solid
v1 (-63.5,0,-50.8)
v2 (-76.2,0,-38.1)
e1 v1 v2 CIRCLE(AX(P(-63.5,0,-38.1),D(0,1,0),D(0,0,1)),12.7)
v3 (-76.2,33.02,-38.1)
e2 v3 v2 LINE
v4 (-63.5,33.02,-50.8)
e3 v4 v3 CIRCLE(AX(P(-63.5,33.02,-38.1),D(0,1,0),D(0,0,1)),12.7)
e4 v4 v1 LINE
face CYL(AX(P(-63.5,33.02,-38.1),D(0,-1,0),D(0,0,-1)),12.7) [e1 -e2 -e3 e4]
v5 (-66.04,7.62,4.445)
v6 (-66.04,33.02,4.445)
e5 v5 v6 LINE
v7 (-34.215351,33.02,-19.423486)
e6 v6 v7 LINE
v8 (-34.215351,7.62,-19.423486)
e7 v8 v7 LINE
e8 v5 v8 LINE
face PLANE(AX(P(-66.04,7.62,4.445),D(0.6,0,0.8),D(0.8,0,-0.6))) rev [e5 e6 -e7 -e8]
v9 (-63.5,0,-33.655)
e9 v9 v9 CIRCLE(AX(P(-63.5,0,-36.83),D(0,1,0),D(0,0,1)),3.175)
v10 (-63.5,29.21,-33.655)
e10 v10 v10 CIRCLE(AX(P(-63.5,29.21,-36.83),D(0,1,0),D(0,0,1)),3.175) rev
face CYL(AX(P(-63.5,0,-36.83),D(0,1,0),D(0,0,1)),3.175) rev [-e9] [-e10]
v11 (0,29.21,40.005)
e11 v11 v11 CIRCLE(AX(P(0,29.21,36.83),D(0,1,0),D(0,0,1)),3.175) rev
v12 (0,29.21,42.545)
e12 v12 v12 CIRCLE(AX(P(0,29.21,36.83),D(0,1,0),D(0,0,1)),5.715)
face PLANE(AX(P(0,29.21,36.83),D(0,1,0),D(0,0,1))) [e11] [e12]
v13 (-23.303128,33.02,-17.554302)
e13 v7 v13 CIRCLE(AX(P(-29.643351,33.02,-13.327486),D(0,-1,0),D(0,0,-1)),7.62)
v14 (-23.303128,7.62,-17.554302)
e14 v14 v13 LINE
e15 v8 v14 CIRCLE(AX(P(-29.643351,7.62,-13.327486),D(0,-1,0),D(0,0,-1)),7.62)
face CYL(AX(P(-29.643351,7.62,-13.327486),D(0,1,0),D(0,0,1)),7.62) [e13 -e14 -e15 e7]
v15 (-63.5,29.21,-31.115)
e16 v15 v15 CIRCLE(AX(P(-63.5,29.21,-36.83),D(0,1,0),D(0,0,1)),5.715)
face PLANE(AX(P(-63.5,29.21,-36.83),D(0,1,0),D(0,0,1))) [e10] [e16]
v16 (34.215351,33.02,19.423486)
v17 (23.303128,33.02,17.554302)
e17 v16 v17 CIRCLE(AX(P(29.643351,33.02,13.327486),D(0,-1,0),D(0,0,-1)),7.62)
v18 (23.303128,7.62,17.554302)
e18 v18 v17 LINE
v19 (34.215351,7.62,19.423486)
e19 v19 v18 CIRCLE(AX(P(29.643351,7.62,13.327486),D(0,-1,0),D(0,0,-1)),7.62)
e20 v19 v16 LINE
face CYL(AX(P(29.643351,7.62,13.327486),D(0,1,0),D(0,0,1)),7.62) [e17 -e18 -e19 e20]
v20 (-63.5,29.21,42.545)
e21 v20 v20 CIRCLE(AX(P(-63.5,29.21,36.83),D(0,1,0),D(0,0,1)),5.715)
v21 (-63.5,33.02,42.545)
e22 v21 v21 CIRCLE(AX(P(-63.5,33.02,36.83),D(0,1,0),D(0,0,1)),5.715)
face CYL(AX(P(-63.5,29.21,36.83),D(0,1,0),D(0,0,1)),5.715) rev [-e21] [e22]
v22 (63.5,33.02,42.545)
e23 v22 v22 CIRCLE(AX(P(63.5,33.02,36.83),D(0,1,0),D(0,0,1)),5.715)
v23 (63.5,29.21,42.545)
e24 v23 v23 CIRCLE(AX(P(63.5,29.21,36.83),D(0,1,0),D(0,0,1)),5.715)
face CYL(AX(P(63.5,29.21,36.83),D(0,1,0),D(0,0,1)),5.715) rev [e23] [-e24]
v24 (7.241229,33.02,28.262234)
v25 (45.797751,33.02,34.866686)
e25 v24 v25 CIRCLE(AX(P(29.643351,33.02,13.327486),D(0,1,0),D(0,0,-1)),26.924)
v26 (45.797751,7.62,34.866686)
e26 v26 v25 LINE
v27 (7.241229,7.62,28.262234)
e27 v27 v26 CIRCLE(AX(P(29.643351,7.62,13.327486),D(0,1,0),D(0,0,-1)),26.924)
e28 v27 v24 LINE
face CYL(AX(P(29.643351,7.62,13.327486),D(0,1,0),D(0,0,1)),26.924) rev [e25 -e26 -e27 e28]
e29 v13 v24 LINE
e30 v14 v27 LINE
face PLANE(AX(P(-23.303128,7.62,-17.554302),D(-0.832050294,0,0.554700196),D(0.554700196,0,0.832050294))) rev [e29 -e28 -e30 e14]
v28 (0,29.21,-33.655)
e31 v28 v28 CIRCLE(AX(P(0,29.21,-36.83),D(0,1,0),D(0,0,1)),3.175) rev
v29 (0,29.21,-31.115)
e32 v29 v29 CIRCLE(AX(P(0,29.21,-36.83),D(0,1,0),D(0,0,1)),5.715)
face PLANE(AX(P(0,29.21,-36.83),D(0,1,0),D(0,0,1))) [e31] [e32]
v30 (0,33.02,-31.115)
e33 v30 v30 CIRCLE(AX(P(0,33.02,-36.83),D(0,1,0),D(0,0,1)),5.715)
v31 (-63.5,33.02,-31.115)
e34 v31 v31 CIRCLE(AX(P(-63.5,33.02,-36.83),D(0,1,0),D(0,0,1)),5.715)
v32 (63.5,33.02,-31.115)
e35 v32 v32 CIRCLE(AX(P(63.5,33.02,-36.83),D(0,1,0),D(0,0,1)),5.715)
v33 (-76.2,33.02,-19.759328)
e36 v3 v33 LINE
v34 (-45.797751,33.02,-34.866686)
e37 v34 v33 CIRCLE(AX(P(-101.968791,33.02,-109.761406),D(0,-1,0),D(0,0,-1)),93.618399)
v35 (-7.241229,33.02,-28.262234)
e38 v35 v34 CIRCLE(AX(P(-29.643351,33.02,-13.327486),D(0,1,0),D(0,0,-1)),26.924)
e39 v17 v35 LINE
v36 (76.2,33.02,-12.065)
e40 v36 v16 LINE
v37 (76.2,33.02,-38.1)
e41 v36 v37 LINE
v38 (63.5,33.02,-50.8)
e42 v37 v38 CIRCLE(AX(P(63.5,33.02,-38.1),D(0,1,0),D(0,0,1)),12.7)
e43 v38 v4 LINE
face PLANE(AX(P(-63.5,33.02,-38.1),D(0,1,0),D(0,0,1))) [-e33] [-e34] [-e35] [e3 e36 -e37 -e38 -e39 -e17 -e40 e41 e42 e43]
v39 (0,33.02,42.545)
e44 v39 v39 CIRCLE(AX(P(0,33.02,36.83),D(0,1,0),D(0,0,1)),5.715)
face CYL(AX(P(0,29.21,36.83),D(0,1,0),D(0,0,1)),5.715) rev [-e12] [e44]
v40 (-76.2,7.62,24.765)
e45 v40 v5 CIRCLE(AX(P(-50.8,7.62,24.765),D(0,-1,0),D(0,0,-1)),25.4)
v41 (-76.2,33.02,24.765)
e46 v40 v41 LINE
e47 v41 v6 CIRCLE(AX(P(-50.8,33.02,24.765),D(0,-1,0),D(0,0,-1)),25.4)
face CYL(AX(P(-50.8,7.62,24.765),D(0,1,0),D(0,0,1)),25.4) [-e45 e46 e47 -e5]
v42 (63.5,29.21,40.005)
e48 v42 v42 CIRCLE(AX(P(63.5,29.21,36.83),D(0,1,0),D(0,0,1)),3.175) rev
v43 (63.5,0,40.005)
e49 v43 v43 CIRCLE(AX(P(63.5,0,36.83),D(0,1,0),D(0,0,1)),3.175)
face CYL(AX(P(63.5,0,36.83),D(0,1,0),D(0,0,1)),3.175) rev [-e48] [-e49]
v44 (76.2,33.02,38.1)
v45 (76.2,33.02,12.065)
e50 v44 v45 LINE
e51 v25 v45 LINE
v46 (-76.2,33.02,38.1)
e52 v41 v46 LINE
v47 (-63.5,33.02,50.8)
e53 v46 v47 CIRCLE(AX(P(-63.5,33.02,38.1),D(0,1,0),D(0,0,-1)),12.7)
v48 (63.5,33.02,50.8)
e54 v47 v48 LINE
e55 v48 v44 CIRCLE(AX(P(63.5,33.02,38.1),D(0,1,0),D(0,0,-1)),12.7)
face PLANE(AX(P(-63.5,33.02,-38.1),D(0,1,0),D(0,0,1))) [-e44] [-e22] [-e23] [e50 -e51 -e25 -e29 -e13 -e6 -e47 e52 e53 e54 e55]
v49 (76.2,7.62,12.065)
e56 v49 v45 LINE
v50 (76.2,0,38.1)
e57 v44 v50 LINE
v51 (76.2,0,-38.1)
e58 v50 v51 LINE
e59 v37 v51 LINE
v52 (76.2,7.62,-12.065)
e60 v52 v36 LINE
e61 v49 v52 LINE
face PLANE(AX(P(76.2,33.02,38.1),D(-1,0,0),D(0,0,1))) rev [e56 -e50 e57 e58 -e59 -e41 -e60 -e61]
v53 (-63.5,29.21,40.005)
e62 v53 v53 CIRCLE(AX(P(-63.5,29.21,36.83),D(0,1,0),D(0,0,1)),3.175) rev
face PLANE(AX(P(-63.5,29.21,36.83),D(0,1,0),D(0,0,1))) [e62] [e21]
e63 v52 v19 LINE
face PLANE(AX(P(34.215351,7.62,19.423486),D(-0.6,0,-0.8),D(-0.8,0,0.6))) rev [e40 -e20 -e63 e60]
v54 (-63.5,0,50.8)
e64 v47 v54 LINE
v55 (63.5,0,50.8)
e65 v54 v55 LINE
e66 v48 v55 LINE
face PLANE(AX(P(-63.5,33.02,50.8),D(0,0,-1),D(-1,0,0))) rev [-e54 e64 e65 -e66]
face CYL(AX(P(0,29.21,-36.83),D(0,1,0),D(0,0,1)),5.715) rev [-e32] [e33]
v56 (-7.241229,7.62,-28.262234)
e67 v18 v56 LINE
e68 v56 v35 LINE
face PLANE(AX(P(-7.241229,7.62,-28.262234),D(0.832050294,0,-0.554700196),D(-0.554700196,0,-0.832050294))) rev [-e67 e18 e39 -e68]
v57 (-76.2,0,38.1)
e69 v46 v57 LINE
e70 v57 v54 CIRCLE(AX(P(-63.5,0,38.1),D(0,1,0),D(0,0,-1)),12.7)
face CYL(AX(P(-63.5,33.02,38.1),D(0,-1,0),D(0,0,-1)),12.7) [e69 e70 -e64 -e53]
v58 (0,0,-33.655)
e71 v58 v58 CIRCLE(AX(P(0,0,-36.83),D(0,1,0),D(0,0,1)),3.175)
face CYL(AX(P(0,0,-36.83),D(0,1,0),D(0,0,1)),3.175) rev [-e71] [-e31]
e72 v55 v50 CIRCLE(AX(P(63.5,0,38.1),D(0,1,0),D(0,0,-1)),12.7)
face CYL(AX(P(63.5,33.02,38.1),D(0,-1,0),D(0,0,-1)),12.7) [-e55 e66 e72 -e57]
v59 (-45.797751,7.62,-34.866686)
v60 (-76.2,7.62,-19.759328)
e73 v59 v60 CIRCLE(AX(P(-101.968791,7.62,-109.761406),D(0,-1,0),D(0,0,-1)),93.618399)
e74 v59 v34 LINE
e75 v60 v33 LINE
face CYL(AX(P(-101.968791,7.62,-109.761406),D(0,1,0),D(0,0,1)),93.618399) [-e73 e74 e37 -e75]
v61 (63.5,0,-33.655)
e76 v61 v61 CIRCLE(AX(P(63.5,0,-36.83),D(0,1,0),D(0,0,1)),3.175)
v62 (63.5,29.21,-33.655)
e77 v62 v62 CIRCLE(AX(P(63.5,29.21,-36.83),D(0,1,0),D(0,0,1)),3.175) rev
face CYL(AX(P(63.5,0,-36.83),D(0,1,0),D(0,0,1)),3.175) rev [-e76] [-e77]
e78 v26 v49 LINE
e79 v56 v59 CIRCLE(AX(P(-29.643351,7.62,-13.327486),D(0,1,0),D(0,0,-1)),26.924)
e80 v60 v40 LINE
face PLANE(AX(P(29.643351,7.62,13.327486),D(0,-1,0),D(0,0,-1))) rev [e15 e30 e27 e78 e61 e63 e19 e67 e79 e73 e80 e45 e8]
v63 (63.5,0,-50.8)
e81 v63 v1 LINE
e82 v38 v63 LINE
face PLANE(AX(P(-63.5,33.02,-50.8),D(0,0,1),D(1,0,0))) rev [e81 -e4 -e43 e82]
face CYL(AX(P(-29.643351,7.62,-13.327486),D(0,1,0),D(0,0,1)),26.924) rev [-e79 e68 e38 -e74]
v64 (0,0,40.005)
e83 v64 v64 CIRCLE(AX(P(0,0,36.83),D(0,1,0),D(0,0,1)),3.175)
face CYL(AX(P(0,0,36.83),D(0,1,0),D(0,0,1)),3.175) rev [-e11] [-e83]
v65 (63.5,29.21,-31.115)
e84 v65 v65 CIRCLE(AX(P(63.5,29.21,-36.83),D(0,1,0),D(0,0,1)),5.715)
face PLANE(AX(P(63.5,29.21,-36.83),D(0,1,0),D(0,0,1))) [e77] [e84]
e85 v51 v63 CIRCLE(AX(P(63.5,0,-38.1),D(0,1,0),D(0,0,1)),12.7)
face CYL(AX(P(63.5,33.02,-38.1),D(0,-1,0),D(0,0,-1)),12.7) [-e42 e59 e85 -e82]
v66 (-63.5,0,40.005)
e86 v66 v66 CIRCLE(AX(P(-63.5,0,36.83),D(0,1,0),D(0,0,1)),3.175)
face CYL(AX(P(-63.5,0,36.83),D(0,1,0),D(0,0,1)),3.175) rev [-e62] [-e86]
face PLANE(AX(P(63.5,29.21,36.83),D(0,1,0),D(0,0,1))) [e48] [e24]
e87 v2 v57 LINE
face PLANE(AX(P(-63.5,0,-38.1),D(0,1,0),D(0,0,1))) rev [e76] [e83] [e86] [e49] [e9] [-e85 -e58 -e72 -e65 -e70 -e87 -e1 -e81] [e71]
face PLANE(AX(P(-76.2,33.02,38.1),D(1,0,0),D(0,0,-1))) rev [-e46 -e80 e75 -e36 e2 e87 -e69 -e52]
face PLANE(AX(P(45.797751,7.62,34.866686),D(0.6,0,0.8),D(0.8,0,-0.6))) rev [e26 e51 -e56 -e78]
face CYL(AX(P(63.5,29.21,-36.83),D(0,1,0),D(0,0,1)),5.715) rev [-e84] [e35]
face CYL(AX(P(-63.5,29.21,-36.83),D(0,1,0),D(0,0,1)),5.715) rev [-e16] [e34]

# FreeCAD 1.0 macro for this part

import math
import FreeCAD as App
import Part
import Sketcher
Q = App.Units.Quantity

doc = App.newDocument("Part")
body = doc.addObject("PartDesign::Body", "Body")

# Sketch on XZ plane
sketch1 = body.newObject("Sketcher::SketchObject", "Sketch")
sketch1.AttachmentSupport = (doc.getObject("XZ_Plane"), [""])
sketch1.MapMode = "FlatFace"
sketch1.addGeometry([
    Part.LineSegment(App.Vector(-64, 51, 0), App.Vector(64, 51, 0)),  # 0
    Part.ArcOfCircle(Part.Circle(App.Vector(64, 38, 0), App.Vector(0, 0, 1), 13), math.radians(0), math.radians(90)),  # 1
    Part.LineSegment(App.Vector(76, 38, 0), App.Vector(76, -38, 0)),  # 2
    Part.ArcOfCircle(Part.Circle(App.Vector(64, -38, 0), App.Vector(0, 0, 1), 13), math.radians(-90), math.radians(0)),  # 3
    Part.LineSegment(App.Vector(64, -51, 0), App.Vector(-64, -51, 0)),  # 4
    Part.ArcOfCircle(Part.Circle(App.Vector(-64, -38, 0), App.Vector(0, 0, 1), 13), math.radians(180), math.radians(270)),  # 5
    Part.LineSegment(App.Vector(-76, -38, 0), App.Vector(-76, 38, 0)),  # 6
    Part.ArcOfCircle(Part.Circle(App.Vector(-64, 38, 0), App.Vector(0, 0, 1), 13), math.radians(90), math.radians(180)),  # 7
], False)
sketch1.addConstraint([
    Sketcher.Constraint("Tangent", 0, 2, 1, 2),
    Sketcher.Constraint("Tangent", 1, 1, 2, 1),
    Sketcher.Constraint("Tangent", 2, 2, 3, 2),
    Sketcher.Constraint("Tangent", 3, 1, 4, 1),
    Sketcher.Constraint("Tangent", 4, 2, 5, 2),
    Sketcher.Constraint("Tangent", 5, 1, 6, 1),
    Sketcher.Constraint("Tangent", 6, 2, 7, 2),
    Sketcher.Constraint("Tangent", 7, 1, 0, 1),
    Sketcher.Constraint("Horizontal", 0),
    Sketcher.Constraint("Vertical", 2),
    Sketcher.Constraint("Horizontal", 4),
    Sketcher.Constraint("Vertical", 6),
    Sketcher.Constraint("Equal", 1, 3),
    Sketcher.Constraint("Equal", 3, 5),
    Sketcher.Constraint("Equal", 5, 7),
    Sketcher.Constraint("Symmetric", 1, 3, 5, 3, -1, 1),
    Sketcher.Constraint("Radius", 1, Q("0.5 in")),
    Sketcher.Constraint("DistanceX", 0, 1, 0, 2, Q("5 in")),
    Sketcher.Constraint("DistanceY", 2, 2, 2, 1, Q("3 in")),
])
pad1 = body.newObject("PartDesign::Pad", "Pad")
pad1.Profile = sketch1
pad1.Length = Q("1.3 in")
pad1.Reversed = True

# Sketch on XZ plane
sketch2 = body.newObject("Sketcher::SketchObject", "Sketch001")
sketch2.AttachmentSupport = (doc.getObject("XZ_Plane"), [""])
sketch2.MapMode = "FlatFace"
sketch2.AttachmentOffset = App.Placement(App.Vector(0, 0, -1.3 * 25.4), App.Rotation())
sketch2.addGeometry([
    Part.LineSegment(App.Vector(-76, -20, 0), App.Vector(-76, 25, 0)),  # 0
    Part.ArcOfCircle(Part.Circle(App.Vector(-51, 25, 0), App.Vector(0, 0, 1), 25), math.radians(-180), math.radians(-127)),  # 1
    Part.LineSegment(App.Vector(-66, 4, 0), App.Vector(-34, -19, 0)),  # 2
    Part.ArcOfCircle(Part.Circle(App.Vector(-30, -13, 0), App.Vector(0, 0, 1), 8), math.radians(-127), math.radians(-34)),  # 3
    Part.LineSegment(App.Vector(-23, -18, 0), App.Vector(7, 28, 0)),  # 4
    Part.ArcOfCircle(Part.Circle(App.Vector(30, 13, 0), App.Vector(0, 0, 1), 27), math.radians(53), math.radians(146)),  # 5
    Part.LineSegment(App.Vector(46, 35, 0), App.Vector(76, 12, 0)),  # 6
    Part.LineSegment(App.Vector(76, 12, 0), App.Vector(76, -12, 0)),  # 7
    Part.LineSegment(App.Vector(76, -12, 0), App.Vector(34, 19, 0)),  # 8
    Part.ArcOfCircle(Part.Circle(App.Vector(30, 13, 0), App.Vector(0, 0, 1), 8), math.radians(53), math.radians(146)),  # 9
    Part.LineSegment(App.Vector(23, 18, 0), App.Vector(-7, -28, 0)),  # 10
    Part.ArcOfCircle(Part.Circle(App.Vector(-30, -13, 0), App.Vector(0, 0, 1), 27), math.radians(-127), math.radians(-34)),  # 11
    Part.ArcOfCircle(Part.Circle(App.Vector(-102, -110, 0), App.Vector(0, 0, 1), 94), math.radians(53), math.radians(74)),  # 12
], False)
sketch2.addConstraint([
    Sketcher.Constraint("Tangent", 0, 2, 1, 1),
    Sketcher.Constraint("Tangent", 1, 2, 2, 1),
    Sketcher.Constraint("Tangent", 2, 2, 3, 1),
    Sketcher.Constraint("Tangent", 3, 2, 4, 1),
    Sketcher.Constraint("Tangent", 4, 2, 5, 2),
    Sketcher.Constraint("Tangent", 5, 1, 6, 1),
    Sketcher.Constraint("Coincident", 6, 2, 7, 1),
    Sketcher.Constraint("Coincident", 7, 2, 8, 1),
    Sketcher.Constraint("Tangent", 8, 2, 9, 1),
    Sketcher.Constraint("Tangent", 9, 2, 10, 1),
    Sketcher.Constraint("Tangent", 10, 2, 11, 2),
    Sketcher.Constraint("Tangent", 11, 1, 12, 1),
    Sketcher.Constraint("Coincident", 12, 2, 0, 1),
    Sketcher.Constraint("Vertical", 0),
    Sketcher.Constraint("Vertical", 7),
    Sketcher.Constraint("Coincident", 9, 3, 5, 3),
    Sketcher.Constraint("Coincident", 11, 3, 3, 3),
    Sketcher.Constraint("Equal", 3, 9),
    Sketcher.Constraint("Equal", 5, 11),
    Sketcher.Constraint("Symmetric", 3, 3, 5, 3, -1, 1),
    Sketcher.Constraint("Parallel", 2, 6),
    Sketcher.Constraint("Parallel", 6, 8),
    Sketcher.Constraint("Radius", 1, Q("1 in")),
    Sketcher.Constraint("Radius", 3, Q("0.3 in")),
    Sketcher.Constraint("Radius", 5, Q("1.06 in")),
    Sketcher.Constraint("DistanceX", 1, 3, -1, 1, Q("2 in")),
    Sketcher.Constraint("DistanceX", -1, 1, 6, 2, Q("3 in")),
    Sketcher.Constraint("DistanceY", 7, 2, 7, 1, Q("0.95 in")),
    Sketcher.Constraint("Radius", 12, Q("93.618399 mm")),
    Sketcher.Constraint("DistanceY", -1, 1, 1, 3, Q("0.975 in")),
    Sketcher.Constraint("DistanceX", 11, 1, 2, 2, Q("0.456 in")),
    Sketcher.Constraint("DistanceY", 3, 2, -1, 1, Q("17.554302 mm")),
])
pocket1 = body.newObject("PartDesign::Pocket", "Pocket")
pocket1.Profile = sketch2
pocket1.Length = Q("1 in")
pocket1.Reversed = True

# Sketch on XZ plane
sketch3 = body.newObject("Sketcher::SketchObject", "Sketch002")
sketch3.AttachmentSupport = (doc.getObject("XZ_Plane"), [""])
sketch3.MapMode = "FlatFace"
sketch3.AttachmentOffset = App.Placement(App.Vector(0, 0, -1.3 * 25.4), App.Rotation())
sketch3.addGeometry([
    Part.Circle(App.Vector(63.5, -36.8, 0), App.Vector(0, 0, 1), 3.2),  # 0
    Part.Circle(App.Vector(0, -36.8, 0), App.Vector(0, 0, 1), 3.2),  # 1
    Part.Circle(App.Vector(-63.5, -36.8, 0), App.Vector(0, 0, 1), 3.2),  # 2
    Part.Circle(App.Vector(63.5, 36.8, 0), App.Vector(0, 0, 1), 3.2),  # 3
    Part.Circle(App.Vector(0, 36.8, 0), App.Vector(0, 0, 1), 3.2),  # 4
    Part.Circle(App.Vector(-63.5, 36.8, 0), App.Vector(0, 0, 1), 3.2),  # 5
], False)
sketch3.addConstraint([
    Sketcher.Constraint("Equal", 0, 1),
    Sketcher.Constraint("Equal", 1, 2),
    Sketcher.Constraint("Equal", 2, 3),
    Sketcher.Constraint("Equal", 3, 4),
    Sketcher.Constraint("Equal", 4, 5),
    Sketcher.Constraint("Symmetric", 2, 3, 3, 3, -1, 1),
    Sketcher.Constraint("Symmetric", 1, 3, 4, 3, -1, 1),
    Sketcher.Constraint("Symmetric", 0, 3, 5, 3, -1, 1),
    Sketcher.Constraint("Symmetric", 0, 3, 2, 3, -2),
    Sketcher.Constraint("PointOnObject", 1, 3, -2),
    Sketcher.Constraint("Horizontal", 0, 3, 1, 3),
    Sketcher.Constraint("Diameter", 0, Q("0.25 in")),
    Sketcher.Constraint("DistanceX", 2, 3, 0, 3, Q("5 in")),
    Sketcher.Constraint("DistanceY", 0, 3, 3, 3, Q("2.9 in")),
])
pocket2 = body.newObject("PartDesign::Pocket", "Pocket001")
pocket2.Profile = sketch3
pocket2.Type = "ThroughAll"
pocket2.Reversed = True

# Sketch on XZ plane
sketch4 = body.newObject("Sketcher::SketchObject", "Sketch003")
sketch4.AttachmentSupport = (doc.getObject("XZ_Plane"), [""])
sketch4.MapMode = "FlatFace"
sketch4.AttachmentOffset = App.Placement(App.Vector(0, 0, -1.3 * 25.4), App.Rotation())
sketch4.addGeometry([
    Part.Circle(App.Vector(-64, -37, 0), App.Vector(0, 0, 1), 6),  # 0
    Part.Circle(App.Vector(0, -37, 0), App.Vector(0, 0, 1), 6),  # 1
    Part.Circle(App.Vector(64, -37, 0), App.Vector(0, 0, 1), 6),  # 2
    Part.Circle(App.Vector(64, 37, 0), App.Vector(0, 0, 1), 6),  # 3
    Part.Circle(App.Vector(0, 37, 0), App.Vector(0, 0, 1), 6),  # 4
    Part.Circle(App.Vector(-64, 37, 0), App.Vector(0, 0, 1), 6),  # 5
], False)
sketch4.addConstraint([
    Sketcher.Constraint("Equal", 0, 1),
    Sketcher.Constraint("Equal", 1, 2),
    Sketcher.Constraint("Equal", 2, 3),
    Sketcher.Constraint("Equal", 3, 4),
    Sketcher.Constraint("Equal", 4, 5),
    Sketcher.Constraint("Symmetric", 0, 3, 3, 3, -1, 1),
    Sketcher.Constraint("Symmetric", 1, 3, 4, 3, -1, 1),
    Sketcher.Constraint("Symmetric", 2, 3, 5, 3, -1, 1),
    Sketcher.Constraint("Symmetric", 0, 3, 2, 3, -2),
    Sketcher.Constraint("PointOnObject", 1, 3, -2),
    Sketcher.Constraint("Horizontal", 0, 3, 1, 3),
    Sketcher.Constraint("Diameter", 0, Q("0.45 in")),
    Sketcher.Constraint("DistanceX", 0, 3, 2, 3, Q("5 in")),
    Sketcher.Constraint("DistanceY", 2, 3, 3, 3, Q("2.9 in")),
])
pocket3 = body.newObject("PartDesign::Pocket", "Pocket002")
pocket3.Profile = sketch4
pocket3.Length = Q("0.15 in")
pocket3.Reversed = True

doc.recompute()
